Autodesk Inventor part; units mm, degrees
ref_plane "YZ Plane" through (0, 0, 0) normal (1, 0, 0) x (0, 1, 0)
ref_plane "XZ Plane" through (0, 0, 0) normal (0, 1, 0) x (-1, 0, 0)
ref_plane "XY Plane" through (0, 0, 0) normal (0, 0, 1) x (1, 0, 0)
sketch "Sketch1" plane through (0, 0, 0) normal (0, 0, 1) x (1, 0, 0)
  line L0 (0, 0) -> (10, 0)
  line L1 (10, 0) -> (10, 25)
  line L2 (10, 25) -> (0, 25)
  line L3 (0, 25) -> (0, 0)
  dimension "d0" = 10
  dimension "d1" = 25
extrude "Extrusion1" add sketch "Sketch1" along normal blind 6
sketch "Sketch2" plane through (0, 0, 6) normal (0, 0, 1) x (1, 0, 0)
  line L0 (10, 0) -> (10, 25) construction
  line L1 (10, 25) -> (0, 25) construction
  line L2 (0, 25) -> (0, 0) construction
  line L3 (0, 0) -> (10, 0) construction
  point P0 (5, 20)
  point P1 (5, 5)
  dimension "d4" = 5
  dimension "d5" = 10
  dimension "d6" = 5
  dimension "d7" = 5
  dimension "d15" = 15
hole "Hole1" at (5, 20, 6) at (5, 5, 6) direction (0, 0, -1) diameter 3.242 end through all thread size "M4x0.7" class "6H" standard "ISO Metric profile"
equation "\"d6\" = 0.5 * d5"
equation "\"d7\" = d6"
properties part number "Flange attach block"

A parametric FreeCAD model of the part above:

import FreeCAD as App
import Part
import Sketcher

doc = App.newDocument("Part")
body = doc.addObject("PartDesign::Body", "Body")

# Sketch on XY plane
sketch1 = body.newObject("Sketcher::SketchObject", "Sketch")
sketch1.AttachmentSupport = (doc.getObject("XY_Plane"), [""])
sketch1.MapMode = "FlatFace"
sketch1.addGeometry([
    Part.LineSegment(App.Vector(0, 25, 0), App.Vector(0, 0, 0)),
    Part.LineSegment(App.Vector(0, 0, 0), App.Vector(10, 0, 0)),
    Part.LineSegment(App.Vector(10, 0, 0), App.Vector(10, 25, 0)),
    Part.LineSegment(App.Vector(10, 25, 0), App.Vector(0, 25, 0)),
], False)
sketch1.addConstraint([
    Sketcher.Constraint("Coincident", 0, 2, 1, 1),
    Sketcher.Constraint("Coincident", 1, 2, 2, 1),
    Sketcher.Constraint("Coincident", 2, 2, 3, 1),
    Sketcher.Constraint("Coincident", 3, 2, 0, 1),
    Sketcher.Constraint("Vertical", 0),
    Sketcher.Constraint("Horizontal", 1),
    Sketcher.Constraint("Vertical", 2),
    Sketcher.Constraint("Horizontal", 3),
    Sketcher.Constraint("Coincident", 0, 2, -1, 1),
    Sketcher.Constraint("DistanceX", 1, 1, 1, 2, 10.0),
    Sketcher.Constraint("DistanceY", 0, 2, 0, 1, 25.0),
])
pad1 = body.newObject("PartDesign::Pad", "Pad")
pad1.Profile = sketch1
pad1.Length = 6

# Sketch on XY plane
sketch2 = body.newObject("Sketcher::SketchObject", "Sketch001")
sketch2.AttachmentSupport = (doc.getObject("XY_Plane"), [""])
sketch2.MapMode = "FlatFace"
sketch2.AttachmentOffset = App.Placement(App.Vector(0, 0, 6), App.Rotation())
sketch2.addGeometry([
    Part.Circle(App.Vector(5, 20, 0), App.Vector(0, 0, 1), 1.6),
    Part.Circle(App.Vector(5, 5, 0), App.Vector(0, 0, 1), 1.6),
], False)
sketch2.addConstraint([
    Sketcher.Constraint("Equal", 0, 1),
    Sketcher.Constraint("Vertical", 0, 3, 1, 3),
    Sketcher.Constraint("Diameter", 0, 3.242),
    Sketcher.Constraint("DistanceX", -1, 1, 0, 3, 5.0),
    Sketcher.Constraint("DistanceY", -1, 1, 0, 3, 20.0),
    Sketcher.Constraint("DistanceY", -1, 1, 1, 3, 5.0),
])
doc.recompute()
hole = body.newObject("PartDesign::Hole", "Hole")
hole.Profile = sketch2
hole.ThreadType = "None"
hole.Diameter = 3.242
hole.DepthType = "ThroughAll"

doc.recompute()
